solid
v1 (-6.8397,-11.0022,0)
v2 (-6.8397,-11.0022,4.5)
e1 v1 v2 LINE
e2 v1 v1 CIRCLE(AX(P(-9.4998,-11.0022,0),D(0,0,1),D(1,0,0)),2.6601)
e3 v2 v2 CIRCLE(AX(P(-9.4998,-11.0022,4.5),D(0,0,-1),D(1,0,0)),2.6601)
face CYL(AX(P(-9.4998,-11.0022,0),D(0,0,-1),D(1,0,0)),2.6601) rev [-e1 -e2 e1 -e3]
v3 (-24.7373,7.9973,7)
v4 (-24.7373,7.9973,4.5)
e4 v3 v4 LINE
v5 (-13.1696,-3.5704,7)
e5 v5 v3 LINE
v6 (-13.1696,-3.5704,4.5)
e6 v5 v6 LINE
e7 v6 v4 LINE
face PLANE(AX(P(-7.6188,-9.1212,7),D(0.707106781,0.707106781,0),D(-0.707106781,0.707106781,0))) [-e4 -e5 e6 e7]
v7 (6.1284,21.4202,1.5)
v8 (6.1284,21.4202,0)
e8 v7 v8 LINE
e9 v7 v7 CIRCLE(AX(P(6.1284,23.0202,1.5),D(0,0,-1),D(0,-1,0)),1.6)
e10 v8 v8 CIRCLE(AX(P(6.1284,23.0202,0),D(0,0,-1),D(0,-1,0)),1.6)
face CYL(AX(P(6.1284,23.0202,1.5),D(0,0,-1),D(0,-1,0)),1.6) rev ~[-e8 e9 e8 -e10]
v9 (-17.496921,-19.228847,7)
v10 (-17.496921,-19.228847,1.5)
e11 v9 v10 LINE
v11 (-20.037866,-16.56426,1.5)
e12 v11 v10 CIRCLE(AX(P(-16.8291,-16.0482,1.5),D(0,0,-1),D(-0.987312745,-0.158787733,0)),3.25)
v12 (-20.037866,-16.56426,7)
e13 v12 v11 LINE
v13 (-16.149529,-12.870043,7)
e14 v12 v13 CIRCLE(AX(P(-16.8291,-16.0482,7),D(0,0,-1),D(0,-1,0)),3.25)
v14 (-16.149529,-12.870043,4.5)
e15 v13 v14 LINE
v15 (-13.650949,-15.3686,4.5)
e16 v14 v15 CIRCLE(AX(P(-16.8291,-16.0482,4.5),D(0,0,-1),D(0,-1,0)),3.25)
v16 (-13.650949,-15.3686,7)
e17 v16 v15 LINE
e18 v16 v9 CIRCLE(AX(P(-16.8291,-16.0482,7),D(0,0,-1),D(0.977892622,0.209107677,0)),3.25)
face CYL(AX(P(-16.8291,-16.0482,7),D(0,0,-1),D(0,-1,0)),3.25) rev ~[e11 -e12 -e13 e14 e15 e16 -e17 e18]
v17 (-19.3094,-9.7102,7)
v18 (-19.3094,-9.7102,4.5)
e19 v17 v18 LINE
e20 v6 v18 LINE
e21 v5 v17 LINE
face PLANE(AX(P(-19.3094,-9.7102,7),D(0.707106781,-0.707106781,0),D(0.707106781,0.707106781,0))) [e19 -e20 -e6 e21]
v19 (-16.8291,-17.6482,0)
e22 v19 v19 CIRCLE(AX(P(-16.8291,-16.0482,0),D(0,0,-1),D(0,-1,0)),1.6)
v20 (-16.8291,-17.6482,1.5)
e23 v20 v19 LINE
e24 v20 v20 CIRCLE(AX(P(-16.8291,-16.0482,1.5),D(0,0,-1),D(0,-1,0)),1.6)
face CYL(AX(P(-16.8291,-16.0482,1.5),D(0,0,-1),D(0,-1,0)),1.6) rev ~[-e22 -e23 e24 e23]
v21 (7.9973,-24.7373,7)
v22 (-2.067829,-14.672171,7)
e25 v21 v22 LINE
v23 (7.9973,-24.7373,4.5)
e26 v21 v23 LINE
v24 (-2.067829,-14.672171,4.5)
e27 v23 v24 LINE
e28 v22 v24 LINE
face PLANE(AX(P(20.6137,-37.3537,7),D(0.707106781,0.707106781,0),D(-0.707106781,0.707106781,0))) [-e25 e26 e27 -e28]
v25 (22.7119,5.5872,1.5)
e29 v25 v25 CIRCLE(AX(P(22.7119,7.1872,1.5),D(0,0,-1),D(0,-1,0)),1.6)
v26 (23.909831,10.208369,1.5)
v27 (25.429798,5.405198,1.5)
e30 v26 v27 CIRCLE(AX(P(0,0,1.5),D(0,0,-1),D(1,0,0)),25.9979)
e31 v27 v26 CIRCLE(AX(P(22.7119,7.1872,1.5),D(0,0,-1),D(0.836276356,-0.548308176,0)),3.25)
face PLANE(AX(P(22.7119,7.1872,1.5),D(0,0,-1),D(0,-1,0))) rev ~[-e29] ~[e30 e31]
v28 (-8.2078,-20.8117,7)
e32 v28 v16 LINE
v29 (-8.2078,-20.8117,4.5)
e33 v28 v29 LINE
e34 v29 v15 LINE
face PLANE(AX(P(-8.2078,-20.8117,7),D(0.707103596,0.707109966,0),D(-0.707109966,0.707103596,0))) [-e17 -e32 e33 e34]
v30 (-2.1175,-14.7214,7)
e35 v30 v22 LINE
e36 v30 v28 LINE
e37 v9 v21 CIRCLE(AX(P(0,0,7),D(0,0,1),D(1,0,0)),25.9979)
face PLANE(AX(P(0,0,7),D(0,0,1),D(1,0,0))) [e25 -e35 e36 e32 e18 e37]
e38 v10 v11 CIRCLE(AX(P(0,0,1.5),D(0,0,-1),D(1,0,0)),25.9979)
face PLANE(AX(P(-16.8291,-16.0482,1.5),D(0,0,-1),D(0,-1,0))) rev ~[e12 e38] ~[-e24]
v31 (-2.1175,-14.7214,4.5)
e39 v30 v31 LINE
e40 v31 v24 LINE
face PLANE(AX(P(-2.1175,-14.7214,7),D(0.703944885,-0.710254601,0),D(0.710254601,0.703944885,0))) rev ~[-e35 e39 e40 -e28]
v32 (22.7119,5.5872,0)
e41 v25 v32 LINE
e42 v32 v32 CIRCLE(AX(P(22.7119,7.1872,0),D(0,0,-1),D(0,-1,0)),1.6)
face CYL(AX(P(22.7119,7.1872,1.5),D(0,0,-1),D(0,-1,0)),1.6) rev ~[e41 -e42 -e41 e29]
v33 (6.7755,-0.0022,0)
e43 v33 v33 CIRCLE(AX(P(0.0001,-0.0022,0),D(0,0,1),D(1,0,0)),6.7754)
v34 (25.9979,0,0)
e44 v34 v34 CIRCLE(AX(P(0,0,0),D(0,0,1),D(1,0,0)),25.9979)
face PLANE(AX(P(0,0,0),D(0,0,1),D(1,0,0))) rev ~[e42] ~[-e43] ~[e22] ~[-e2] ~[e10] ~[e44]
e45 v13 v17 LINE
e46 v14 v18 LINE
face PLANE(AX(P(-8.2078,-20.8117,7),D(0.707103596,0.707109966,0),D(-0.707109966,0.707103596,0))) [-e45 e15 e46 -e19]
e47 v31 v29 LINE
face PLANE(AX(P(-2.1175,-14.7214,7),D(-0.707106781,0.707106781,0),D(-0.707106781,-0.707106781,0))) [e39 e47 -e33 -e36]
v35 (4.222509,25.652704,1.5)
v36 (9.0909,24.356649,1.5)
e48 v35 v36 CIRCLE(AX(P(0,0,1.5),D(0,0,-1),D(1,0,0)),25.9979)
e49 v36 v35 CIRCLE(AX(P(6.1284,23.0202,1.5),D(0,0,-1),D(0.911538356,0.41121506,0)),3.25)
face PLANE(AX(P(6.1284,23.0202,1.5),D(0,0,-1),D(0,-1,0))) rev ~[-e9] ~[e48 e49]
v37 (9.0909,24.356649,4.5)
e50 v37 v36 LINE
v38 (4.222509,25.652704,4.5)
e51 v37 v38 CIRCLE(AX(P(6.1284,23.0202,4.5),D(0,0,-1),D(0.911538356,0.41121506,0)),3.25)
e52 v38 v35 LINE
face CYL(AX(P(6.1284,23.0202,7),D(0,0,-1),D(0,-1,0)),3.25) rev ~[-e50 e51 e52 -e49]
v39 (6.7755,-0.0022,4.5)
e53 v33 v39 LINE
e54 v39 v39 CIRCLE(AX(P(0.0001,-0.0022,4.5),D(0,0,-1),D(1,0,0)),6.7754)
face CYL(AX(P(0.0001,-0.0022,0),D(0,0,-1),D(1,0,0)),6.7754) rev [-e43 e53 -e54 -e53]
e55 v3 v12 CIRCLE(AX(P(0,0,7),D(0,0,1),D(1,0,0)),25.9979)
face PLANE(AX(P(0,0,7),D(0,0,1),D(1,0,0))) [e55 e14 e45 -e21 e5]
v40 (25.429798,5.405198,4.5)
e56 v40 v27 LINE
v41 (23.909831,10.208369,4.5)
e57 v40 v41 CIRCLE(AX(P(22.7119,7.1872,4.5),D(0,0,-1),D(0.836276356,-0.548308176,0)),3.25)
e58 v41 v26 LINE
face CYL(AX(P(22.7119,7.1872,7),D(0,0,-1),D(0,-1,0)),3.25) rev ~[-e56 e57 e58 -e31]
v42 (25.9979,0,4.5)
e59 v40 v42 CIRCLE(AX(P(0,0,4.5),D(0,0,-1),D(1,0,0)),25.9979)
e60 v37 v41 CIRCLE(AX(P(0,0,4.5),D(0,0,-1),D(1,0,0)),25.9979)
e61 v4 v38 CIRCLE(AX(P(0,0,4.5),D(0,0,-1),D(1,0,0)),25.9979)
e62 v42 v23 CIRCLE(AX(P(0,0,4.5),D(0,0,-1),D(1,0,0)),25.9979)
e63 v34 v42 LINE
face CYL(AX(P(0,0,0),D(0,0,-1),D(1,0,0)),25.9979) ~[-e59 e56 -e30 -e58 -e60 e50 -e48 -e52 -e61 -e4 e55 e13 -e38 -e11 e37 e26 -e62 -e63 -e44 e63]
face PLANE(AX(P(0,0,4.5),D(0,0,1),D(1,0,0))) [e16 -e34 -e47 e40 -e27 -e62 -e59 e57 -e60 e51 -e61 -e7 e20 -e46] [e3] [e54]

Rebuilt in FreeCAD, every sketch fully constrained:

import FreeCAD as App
import Part
import Sketcher
from FreeCAD import Vector
Q = App.Units.Quantity


def add_polygon(sketch, points):
    """Adds a closed chain of lines whose ends are joined by coincident constraints."""
    first, n = sketch.GeometryCount, len(points)
    for a, b in zip(points, points[1:] + points[:1]):
        sketch.addGeometry(Part.LineSegment(App.Vector(*a, 0), App.Vector(*b, 0)), False)
    for i in range(n):
        sketch.addConstraint(Sketcher.Constraint("Coincident", first + i, 2, first + (i + 1) % n, 1))

doc = App.newDocument("Part")
body = doc.addObject("PartDesign::Body", "Body")

sketch1 = body.newObject("Sketcher::SketchObject", "Sketch")
sketch1.AttachmentSupport = (doc.getObject("XY_Plane"), [""])
sketch1.MapMode = "FlatFace"
sketch1.addGeometry([
    Part.Circle(Vector(0, 0, 0), Vector(0, 0, 1), 26),
    Part.Circle(Vector(-9.5, -11, 0), Vector(0, 0, 1), 2.7),
    Part.Circle(Vector(0, 0, 0), Vector(0, 0, 1), 6.8),
], False)
sketch1.addConstraint([
    Sketcher.Constraint("Coincident", 0, 3, -1, 1),
    Sketcher.Constraint("PointOnObject", 2, 3, -2),
    Sketcher.Constraint("DistanceY", 1, 3, 2, 3, Q("11 mm")),
    Sketcher.Constraint("Diameter", 0, Q("51.9958 mm")),
    Sketcher.Constraint("Diameter", 1, Q("5.3202 mm")),
    Sketcher.Constraint("Diameter", 2, Q("13.5508 mm")),
    Sketcher.Constraint("DistanceX", 1, 3, 2, 3, Q("9.5 mm")),
    Sketcher.Constraint("DistanceY", 1, 3, -1, 1, Q("11.0022 mm")),
])
pad1 = body.newObject("PartDesign::Pad", "Pad")
pad1.Profile = sketch1
pad1.Length = 7

sketch2 = body.newObject("Sketcher::SketchObject", "Sketch001")
sketch2.AttachmentSupport = (doc.getObject("XY_Plane"), [""])
sketch2.MapMode = "FlatFace"
sketch2.AttachmentOffset = App.Placement(Vector(0, 0, 7), App.Rotation())
add_polygon(sketch2, [(49, -9), (-10, 50), (-39, 22), (21, -37)])
sketch2.addConstraint([
    Sketcher.Constraint("Perpendicular", 0, 1),
    Sketcher.Constraint("Perpendicular", 1, 2),
    Sketcher.Constraint("Perpendicular", 2, 3),
    Sketcher.Constraint("Angle", 0, Q("135 deg")),
    Sketcher.Constraint("Distance", 1, Q("40 mm")),
    Sketcher.Constraint("Distance", 0, Q("83.938 mm")),
    Sketcher.Constraint("DistanceX", 0, 2, -1, 1, Q("10.455 mm")),
    Sketcher.Constraint("DistanceY", -1, 1, 0, 2, Q("50.2837 mm")),
])
pocket1 = body.newObject("PartDesign::Pocket", "Pocket")
pocket1.Profile = sketch2
pocket1.Length = 2.5

sketch3 = body.newObject("Sketcher::SketchObject", "Sketch002")
sketch3.AttachmentSupport = (doc.getObject("XY_Plane"), [""])
sketch3.MapMode = "FlatFace"
sketch3.AttachmentOffset = App.Placement(Vector(0, 0, 7), App.Rotation())
add_polygon(sketch3, [(-8.2078, -20.8117), (-2.1175, -14.7214), (-0.0463, -12.6686), (-11.0984, -1.5176), (-13.1696, -3.5704), (-19.3094, -9.7102)])
sketch3.addConstraint([
    Sketcher.Constraint("Distance", 2, Q("15.7 mm")),
    Sketcher.Constraint("Distance", 5, Q("15.7 mm")),
    Sketcher.Constraint("Distance", 0, Q("8.613 mm")),
    Sketcher.Constraint("Distance", 4, Q("8.683 mm")),
    Sketcher.Constraint("DistanceX", 2, 2, 1, 2, Q("11.052 mm")),
    Sketcher.Constraint("DistanceX", 2, 2, 0, 2, Q("8.981 mm")),
    Sketcher.Constraint("DistanceX", 3, 2, 0, 2, Q("11.052 mm")),
    Sketcher.Constraint("DistanceY", 0, 2, 3, 2, Q("11.151 mm")),
    Sketcher.Constraint("DistanceX", 4, 2, 2, 2, Q("8.211 mm")),
    Sketcher.Constraint("DistanceY", 5, 2, 1, 2, Q("8.143 mm")),
    Sketcher.Constraint("DistanceX", 0, 2, -1, 1, Q("2.1175 mm")),
    Sketcher.Constraint("DistanceY", 0, 2, -1, 1, Q("14.7214 mm")),
])
pocket2 = body.newObject("PartDesign::Pocket", "Pocket001")
pocket2.Profile = sketch3
pocket2.Length = 2.5

sketch4 = body.newObject("Sketcher::SketchObject", "Sketch003")
sketch4.AttachmentSupport = (doc.getObject("XY_Plane"), [""])
sketch4.MapMode = "FlatFace"
sketch4.AttachmentOffset = App.Placement(Vector(0, 0, 7), App.Rotation())
sketch4.addGeometry([
    Part.Circle(Vector(6.1, 23, 0), Vector(0, 0, 1), 1.6),
    Part.Circle(Vector(22.7, 7.2, 0), Vector(0, 0, 1), 1.6),
    Part.Circle(Vector(-16.8, -16, 0), Vector(0, 0, 1), 1.6),
], False)
sketch4.addConstraint([
    Sketcher.Constraint("Equal", 0, 1),
    Sketcher.Constraint("Equal", 1, 2),
    Sketcher.Constraint("Diameter", 0, Q("3.2 mm")),
    Sketcher.Constraint("DistanceX", -1, 1, 1, 3, Q("22.712 mm")),
    Sketcher.Constraint("DistanceX", 2, 3, -1, 1, Q("16.829 mm")),
    Sketcher.Constraint("DistanceY", 1, 3, 0, 3, Q("15.833 mm")),
    Sketcher.Constraint("DistanceX", -1, 1, 0, 3, Q("6.1284 mm")),
    Sketcher.Constraint("DistanceY", -1, 1, 0, 3, Q("23.0202 mm")),
    Sketcher.Constraint("DistanceY", 2, 3, -1, 1, Q("16.0482 mm")),
])
doc.recompute()
hole = body.newObject("PartDesign::Hole", "Hole")
hole.Profile = sketch4
hole.ThreadType = "None"
hole.Diameter = 3.2
hole.DepthType = "ThroughAll"
hole.HoleCutType = "Counterbore"
hole.HoleCutDiameter = 6.5
hole.HoleCutDepth = 5.5

doc.recompute()
